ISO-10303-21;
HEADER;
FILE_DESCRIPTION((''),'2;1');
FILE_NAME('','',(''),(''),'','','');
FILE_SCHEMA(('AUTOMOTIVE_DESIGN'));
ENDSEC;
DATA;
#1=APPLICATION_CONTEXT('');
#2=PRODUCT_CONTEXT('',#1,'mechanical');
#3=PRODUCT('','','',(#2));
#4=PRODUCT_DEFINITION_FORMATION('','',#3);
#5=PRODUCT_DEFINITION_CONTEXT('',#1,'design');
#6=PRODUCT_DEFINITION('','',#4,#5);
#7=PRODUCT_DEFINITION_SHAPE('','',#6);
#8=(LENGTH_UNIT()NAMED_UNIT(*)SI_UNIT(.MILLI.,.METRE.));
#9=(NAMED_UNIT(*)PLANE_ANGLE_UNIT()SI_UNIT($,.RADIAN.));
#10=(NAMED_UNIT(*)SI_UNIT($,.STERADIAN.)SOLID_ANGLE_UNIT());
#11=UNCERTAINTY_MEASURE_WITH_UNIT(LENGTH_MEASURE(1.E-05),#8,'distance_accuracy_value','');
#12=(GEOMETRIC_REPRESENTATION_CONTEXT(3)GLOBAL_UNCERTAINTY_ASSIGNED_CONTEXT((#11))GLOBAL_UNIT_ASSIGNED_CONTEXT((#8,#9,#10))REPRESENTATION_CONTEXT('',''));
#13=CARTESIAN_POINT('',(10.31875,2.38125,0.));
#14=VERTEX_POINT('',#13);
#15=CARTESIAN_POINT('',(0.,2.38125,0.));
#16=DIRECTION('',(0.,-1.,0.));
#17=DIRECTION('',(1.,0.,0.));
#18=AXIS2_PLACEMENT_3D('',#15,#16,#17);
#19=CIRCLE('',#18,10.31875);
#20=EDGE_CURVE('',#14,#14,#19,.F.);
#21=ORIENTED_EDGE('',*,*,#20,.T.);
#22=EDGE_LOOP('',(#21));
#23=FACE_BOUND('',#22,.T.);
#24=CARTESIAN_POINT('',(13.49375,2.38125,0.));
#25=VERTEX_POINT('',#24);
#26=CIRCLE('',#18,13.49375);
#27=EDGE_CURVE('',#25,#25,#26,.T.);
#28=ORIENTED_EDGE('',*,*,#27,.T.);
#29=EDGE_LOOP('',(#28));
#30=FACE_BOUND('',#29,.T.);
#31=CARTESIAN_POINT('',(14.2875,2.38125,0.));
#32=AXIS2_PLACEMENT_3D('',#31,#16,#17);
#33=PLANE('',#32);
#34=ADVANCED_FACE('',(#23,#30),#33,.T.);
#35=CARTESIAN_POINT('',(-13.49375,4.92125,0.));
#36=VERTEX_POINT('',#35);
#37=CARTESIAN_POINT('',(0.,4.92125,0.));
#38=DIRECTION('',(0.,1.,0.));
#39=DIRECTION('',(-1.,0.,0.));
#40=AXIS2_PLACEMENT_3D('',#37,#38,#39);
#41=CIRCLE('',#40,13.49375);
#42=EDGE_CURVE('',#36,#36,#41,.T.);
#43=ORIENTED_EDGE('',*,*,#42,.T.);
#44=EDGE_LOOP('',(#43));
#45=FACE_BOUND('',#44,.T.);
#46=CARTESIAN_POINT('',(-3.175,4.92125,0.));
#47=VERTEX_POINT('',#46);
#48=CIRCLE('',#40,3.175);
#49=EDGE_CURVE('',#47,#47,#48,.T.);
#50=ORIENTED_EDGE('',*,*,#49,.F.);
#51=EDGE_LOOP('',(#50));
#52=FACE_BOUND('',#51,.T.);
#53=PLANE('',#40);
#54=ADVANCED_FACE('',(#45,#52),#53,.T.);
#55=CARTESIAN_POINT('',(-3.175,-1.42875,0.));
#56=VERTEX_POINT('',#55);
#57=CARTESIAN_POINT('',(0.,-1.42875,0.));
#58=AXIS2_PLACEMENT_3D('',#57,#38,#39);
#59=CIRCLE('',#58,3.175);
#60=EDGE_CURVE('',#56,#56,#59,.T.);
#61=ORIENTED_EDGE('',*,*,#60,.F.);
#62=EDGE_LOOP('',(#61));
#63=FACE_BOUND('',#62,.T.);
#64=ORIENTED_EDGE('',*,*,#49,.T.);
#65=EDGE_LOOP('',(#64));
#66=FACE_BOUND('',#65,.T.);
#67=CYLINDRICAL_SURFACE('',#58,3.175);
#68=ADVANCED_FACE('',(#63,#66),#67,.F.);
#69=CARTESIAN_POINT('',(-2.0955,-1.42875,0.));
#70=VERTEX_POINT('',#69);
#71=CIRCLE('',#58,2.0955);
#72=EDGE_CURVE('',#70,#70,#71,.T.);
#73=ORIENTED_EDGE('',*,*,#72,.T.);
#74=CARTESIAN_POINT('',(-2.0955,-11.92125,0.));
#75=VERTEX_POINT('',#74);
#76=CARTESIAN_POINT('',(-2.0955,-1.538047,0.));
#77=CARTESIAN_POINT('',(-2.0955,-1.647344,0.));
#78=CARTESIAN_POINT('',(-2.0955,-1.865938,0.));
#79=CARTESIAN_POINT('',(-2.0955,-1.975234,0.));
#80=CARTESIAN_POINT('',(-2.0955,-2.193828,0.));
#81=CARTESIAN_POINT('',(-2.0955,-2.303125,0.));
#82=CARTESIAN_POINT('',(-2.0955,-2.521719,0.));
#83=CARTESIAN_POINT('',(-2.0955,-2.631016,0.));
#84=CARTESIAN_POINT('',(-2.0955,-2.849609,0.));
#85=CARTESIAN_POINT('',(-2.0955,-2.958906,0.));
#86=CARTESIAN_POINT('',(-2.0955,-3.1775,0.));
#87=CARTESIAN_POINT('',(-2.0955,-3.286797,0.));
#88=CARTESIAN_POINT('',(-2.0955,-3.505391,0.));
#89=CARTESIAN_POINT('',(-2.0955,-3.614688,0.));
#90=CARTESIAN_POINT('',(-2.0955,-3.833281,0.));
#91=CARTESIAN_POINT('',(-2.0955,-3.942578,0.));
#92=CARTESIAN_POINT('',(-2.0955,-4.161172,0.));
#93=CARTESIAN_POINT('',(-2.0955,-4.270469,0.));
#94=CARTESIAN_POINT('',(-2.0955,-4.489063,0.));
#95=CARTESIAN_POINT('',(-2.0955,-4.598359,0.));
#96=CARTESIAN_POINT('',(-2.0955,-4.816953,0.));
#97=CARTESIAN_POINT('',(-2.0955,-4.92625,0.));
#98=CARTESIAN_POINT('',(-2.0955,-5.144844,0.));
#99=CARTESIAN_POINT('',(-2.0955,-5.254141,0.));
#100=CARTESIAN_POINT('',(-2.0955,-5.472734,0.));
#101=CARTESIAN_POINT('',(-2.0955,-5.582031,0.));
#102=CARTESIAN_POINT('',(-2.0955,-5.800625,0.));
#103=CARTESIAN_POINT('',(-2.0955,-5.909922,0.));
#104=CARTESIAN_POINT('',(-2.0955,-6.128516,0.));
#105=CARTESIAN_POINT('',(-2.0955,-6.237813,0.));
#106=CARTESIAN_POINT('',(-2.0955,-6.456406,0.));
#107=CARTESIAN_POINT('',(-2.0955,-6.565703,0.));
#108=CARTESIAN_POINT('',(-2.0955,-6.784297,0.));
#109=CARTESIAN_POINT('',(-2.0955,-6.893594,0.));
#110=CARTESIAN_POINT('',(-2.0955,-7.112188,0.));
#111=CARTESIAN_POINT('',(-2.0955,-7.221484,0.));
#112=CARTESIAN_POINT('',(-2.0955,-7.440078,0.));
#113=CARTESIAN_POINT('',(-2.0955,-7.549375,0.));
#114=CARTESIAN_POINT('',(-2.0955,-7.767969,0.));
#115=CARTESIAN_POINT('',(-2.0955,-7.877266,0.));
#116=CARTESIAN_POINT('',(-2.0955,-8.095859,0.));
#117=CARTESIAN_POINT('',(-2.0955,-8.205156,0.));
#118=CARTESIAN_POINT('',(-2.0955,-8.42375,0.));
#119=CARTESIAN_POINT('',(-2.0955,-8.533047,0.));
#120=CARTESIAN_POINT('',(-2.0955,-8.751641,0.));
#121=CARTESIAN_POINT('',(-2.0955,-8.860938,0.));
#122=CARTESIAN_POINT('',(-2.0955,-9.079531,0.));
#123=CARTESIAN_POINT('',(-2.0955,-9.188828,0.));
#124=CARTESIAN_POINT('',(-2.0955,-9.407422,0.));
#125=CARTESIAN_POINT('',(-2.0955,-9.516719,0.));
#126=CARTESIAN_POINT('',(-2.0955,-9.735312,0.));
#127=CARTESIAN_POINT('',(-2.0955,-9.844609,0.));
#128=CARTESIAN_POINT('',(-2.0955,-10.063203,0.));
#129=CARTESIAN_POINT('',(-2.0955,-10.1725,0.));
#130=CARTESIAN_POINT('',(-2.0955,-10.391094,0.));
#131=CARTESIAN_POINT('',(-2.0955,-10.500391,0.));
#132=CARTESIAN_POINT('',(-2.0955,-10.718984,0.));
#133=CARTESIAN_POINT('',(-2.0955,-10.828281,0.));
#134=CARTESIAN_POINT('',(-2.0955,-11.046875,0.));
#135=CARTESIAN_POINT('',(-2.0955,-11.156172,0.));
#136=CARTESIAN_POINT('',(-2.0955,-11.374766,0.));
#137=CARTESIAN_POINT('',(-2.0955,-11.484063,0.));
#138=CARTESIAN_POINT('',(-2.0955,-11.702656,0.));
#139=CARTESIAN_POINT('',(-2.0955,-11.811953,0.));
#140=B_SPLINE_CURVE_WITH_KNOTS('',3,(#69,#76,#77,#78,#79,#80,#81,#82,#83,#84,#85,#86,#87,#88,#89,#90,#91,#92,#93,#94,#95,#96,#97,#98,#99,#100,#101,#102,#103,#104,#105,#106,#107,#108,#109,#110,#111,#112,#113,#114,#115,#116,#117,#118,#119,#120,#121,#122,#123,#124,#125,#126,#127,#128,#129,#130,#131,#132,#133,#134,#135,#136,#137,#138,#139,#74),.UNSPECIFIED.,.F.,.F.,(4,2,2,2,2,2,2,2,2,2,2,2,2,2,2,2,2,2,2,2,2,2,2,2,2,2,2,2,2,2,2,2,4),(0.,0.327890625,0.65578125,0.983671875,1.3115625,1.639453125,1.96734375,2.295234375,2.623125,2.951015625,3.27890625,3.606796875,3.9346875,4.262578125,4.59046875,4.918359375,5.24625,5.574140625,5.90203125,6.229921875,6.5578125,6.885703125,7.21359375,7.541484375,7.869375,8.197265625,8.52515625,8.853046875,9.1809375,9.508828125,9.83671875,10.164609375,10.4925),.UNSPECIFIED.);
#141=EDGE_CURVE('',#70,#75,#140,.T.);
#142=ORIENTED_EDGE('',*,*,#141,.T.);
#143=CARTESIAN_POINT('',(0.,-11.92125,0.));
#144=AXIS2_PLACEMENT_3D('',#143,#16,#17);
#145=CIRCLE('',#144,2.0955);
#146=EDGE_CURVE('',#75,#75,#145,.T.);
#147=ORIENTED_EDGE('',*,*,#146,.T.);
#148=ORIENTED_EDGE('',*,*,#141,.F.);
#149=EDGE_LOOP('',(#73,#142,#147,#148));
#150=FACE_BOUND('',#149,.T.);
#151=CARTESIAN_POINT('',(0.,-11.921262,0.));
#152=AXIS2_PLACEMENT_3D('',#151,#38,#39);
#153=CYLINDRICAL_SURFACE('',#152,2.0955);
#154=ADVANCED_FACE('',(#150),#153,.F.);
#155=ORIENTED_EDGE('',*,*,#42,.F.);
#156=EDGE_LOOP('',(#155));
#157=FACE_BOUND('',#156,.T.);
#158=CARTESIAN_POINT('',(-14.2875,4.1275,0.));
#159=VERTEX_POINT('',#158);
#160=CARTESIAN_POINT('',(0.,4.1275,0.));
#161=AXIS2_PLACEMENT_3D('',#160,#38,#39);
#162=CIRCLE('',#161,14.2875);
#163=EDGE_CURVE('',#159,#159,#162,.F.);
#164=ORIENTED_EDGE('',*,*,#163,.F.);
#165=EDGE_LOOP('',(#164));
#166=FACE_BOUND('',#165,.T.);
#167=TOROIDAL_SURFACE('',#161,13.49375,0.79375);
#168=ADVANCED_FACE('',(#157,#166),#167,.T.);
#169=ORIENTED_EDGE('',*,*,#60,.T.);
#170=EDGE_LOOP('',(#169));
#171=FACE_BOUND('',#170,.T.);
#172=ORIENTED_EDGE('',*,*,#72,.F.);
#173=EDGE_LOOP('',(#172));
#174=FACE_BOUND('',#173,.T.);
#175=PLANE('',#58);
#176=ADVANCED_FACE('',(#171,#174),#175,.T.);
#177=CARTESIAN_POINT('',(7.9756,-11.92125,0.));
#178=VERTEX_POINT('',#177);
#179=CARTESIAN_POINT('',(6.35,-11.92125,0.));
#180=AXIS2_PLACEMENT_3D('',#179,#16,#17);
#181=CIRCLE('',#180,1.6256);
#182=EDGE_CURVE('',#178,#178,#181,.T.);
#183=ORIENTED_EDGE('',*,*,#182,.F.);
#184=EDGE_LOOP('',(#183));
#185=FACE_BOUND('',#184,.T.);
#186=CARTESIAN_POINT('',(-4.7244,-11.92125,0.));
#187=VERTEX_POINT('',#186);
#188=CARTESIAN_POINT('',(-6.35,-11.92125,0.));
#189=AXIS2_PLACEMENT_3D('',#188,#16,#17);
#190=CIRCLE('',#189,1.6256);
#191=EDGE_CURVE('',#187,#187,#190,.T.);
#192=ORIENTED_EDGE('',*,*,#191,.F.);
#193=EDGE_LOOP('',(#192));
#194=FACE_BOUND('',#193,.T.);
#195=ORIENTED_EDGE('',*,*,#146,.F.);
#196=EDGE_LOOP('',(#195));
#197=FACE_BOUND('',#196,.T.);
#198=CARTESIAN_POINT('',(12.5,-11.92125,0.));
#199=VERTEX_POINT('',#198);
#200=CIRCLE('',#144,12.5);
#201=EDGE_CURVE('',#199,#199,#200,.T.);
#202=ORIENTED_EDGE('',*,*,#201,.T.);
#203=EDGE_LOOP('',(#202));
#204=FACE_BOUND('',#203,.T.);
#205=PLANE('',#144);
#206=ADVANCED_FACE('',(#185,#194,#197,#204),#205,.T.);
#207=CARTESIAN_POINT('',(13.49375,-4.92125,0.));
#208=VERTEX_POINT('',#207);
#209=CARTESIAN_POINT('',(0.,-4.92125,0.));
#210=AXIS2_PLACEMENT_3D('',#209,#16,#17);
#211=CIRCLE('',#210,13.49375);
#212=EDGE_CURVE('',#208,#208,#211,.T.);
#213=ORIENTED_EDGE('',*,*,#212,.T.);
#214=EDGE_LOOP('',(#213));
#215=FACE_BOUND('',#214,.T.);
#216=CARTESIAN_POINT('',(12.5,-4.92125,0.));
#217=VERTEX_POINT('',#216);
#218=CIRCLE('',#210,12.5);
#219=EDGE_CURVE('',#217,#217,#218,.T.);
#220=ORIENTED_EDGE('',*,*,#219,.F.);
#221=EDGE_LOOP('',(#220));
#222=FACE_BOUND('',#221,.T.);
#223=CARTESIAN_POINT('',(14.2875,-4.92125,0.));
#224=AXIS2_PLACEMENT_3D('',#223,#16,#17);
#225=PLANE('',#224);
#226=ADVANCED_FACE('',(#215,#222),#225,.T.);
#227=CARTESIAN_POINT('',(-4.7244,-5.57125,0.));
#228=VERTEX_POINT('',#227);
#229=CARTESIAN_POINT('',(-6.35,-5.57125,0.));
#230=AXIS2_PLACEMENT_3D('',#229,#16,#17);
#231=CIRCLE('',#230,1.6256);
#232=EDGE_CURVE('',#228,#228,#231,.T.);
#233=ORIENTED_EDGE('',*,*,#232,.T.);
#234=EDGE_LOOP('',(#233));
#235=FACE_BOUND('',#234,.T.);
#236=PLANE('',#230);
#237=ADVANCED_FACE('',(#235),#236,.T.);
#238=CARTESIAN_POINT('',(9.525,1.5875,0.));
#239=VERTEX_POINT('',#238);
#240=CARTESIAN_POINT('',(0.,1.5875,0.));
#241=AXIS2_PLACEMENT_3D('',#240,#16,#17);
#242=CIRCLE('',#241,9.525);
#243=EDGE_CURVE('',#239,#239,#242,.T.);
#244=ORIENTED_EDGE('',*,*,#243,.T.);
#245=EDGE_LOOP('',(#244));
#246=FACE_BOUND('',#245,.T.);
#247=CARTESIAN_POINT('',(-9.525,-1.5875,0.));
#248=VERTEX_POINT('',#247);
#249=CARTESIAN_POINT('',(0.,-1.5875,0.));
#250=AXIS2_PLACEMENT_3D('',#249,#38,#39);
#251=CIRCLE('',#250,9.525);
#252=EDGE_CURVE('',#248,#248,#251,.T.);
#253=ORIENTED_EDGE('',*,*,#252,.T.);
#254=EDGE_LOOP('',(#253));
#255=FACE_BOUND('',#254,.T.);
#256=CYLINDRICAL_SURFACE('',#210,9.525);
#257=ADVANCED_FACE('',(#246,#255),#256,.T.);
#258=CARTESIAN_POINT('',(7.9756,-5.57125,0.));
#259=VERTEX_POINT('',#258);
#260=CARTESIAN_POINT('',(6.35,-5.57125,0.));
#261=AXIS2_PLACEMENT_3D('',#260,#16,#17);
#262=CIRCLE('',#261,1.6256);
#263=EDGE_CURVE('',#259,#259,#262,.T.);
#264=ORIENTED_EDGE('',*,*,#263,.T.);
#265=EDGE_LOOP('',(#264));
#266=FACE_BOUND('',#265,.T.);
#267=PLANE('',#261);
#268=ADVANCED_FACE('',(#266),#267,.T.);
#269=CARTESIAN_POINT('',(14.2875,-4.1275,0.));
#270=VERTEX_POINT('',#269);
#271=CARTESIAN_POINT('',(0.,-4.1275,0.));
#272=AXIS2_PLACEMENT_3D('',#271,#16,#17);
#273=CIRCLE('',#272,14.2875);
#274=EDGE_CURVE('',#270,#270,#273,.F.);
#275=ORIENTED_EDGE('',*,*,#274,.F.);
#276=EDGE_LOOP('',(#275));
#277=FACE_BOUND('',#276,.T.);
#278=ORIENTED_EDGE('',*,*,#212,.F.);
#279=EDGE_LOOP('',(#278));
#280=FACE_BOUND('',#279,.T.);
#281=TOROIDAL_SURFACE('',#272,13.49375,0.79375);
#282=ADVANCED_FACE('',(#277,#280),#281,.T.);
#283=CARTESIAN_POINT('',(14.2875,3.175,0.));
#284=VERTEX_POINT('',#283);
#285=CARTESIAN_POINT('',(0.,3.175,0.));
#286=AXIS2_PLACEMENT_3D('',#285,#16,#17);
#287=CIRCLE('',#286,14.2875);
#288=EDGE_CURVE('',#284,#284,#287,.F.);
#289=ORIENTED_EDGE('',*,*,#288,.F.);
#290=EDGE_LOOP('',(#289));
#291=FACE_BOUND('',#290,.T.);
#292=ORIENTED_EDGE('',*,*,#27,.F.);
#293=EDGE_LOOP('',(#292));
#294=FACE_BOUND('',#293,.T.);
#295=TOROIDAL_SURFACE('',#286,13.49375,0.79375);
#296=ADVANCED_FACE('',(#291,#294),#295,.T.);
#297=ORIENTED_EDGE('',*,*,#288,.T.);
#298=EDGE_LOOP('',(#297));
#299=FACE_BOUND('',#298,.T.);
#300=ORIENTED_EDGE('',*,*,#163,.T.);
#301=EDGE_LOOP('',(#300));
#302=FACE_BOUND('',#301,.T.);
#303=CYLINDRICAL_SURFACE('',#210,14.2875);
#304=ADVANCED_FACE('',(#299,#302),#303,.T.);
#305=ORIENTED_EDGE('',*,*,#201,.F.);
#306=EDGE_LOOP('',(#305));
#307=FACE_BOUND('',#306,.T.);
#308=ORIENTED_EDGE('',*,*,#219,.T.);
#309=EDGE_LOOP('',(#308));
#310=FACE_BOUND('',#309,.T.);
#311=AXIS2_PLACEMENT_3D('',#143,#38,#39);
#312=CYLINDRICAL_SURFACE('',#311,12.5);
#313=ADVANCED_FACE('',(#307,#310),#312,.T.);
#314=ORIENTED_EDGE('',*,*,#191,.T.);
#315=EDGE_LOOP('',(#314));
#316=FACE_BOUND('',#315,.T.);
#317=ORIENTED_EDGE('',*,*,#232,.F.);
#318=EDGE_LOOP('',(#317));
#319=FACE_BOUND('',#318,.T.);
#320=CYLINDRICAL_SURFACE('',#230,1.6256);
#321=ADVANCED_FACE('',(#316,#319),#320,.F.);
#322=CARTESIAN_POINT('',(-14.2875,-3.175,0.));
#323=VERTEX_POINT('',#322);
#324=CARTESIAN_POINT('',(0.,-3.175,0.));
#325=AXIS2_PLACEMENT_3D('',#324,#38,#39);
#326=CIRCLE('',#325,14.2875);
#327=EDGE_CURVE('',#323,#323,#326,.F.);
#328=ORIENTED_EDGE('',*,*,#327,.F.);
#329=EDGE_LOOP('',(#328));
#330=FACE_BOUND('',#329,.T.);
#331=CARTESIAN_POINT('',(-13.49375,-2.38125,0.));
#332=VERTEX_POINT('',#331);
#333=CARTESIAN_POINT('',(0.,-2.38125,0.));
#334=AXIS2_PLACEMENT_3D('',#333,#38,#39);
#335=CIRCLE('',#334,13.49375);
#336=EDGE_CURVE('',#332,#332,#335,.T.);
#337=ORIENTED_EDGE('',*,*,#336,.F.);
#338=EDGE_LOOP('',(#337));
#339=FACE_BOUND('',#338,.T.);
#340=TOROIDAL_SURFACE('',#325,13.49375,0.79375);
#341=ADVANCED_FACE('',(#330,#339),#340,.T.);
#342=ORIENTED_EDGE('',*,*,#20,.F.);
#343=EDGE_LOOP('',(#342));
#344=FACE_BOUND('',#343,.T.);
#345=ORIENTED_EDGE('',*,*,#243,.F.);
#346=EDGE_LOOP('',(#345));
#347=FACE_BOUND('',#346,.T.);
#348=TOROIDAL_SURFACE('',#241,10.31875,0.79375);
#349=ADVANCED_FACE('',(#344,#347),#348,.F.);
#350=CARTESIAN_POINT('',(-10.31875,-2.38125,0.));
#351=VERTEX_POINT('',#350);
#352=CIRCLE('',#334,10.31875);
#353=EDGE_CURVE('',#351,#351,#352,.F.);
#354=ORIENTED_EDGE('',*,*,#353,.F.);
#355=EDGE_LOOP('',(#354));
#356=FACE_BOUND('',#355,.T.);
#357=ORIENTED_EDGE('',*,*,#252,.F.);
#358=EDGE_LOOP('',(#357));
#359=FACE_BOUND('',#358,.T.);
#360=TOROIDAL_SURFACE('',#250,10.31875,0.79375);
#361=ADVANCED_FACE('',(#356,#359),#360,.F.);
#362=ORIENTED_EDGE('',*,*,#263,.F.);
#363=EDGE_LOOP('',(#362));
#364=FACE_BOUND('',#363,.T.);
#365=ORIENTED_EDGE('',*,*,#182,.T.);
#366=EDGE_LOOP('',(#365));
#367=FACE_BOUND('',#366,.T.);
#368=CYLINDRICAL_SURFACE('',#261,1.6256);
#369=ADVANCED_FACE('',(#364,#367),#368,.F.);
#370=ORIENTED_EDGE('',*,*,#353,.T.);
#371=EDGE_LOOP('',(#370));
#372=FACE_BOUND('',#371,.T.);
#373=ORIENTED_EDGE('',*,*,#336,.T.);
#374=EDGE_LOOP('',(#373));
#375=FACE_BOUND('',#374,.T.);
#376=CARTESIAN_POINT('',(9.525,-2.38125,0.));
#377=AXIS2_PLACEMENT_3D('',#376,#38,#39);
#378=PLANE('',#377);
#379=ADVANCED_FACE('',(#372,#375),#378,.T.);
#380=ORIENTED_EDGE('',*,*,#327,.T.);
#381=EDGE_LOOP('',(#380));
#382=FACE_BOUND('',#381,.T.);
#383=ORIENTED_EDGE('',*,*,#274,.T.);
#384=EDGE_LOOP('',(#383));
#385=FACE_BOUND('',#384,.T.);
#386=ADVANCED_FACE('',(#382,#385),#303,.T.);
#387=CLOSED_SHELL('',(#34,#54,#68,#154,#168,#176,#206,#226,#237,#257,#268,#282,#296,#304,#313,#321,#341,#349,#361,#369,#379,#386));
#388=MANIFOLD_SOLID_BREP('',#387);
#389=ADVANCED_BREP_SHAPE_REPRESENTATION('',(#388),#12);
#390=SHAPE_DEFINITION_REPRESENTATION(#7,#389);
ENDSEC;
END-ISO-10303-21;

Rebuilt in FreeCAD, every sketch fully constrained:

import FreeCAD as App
import Part
import Sketcher

V = App.Vector
Q = App.Units.Quantity


def edges_at(feature, points):
    """Names of the edges that pass closest to the given points."""
    edges = feature.Shape.Edges
    near = lambda p: min(range(len(edges)), key=lambda i: edges[i].distToShape(Part.Vertex(*p))[0])
    return sorted({f"Edge{near(p) + 1}" for p in points})


def add_polygon(sketch, points):
    """Adds a closed chain of lines whose ends are joined by coincident constraints."""
    first, n = sketch.GeometryCount, len(points)
    for a, b in zip(points, points[1:] + points[:1]):
        sketch.addGeometry(Part.LineSegment(App.Vector(*a, 0), App.Vector(*b, 0)), False)
    for i in range(n):
        sketch.addConstraint(Sketcher.Constraint("Coincident", first + i, 2, first + (i + 1) % n, 1))

doc = App.newDocument("Part")
params = doc.addObject("Spreadsheet::Sheet", "Params")
for row, (alias, value) in enumerate([
    ("sketch1_height", "0.1 in"),
    ("sketch1_width", "0.5625 in"),
    ("sketch1_width2", "0.1875 in"),
    ("revolution_angle", "360 deg"),
    ("fillet_radius", "0.03125 in"),
    ("sketch2_diameter", "0.25 in"),
    ("pocket1_length", "0.25 in"),
    ("pad1_length", "7 mm"),
    ("sketch4_diameter", "0.165 in"),
    ("sketch5_diameter", "0.128 in"),
    ("pocket3_length", "0.25 in"),
], start=1):
    params.set(f"A{row}", alias)
    params.set(f"B{row}", "=" + value)
    params.setAlias(f"B{row}", alias)

body = doc.addObject("PartDesign::Body", "Body")

# Sketch on XY plane
sketch1 = doc.addObject("Sketcher::SketchObject", "Sketch")
body.addObject(sketch1)
sketch1.AttachmentSupport = (doc.XY_Plane, [""])
sketch1.MapMode = "FlatFace"
add_polygon(sketch1, [(14.3, 4.9), (0, 4.9), (0, -4.9), (14.3, -4.9), (14.3, -2.4), (9.5, -2.4), (9.5, 2.4), (14.3, 2.4)])  # lines 0-7
sketch1.addConstraint(Sketcher.Constraint("Horizontal", 0))
sketch1.addConstraint(Sketcher.Constraint("Vertical", 1))
sketch1.addConstraint(Sketcher.Constraint("Horizontal", 2))
sketch1.addConstraint(Sketcher.Constraint("Vertical", 3))
sketch1.addConstraint(Sketcher.Constraint("Horizontal", 4))
sketch1.addConstraint(Sketcher.Constraint("Vertical", 5))
sketch1.addConstraint(Sketcher.Constraint("Horizontal", 6))
sketch1.addConstraint(Sketcher.Constraint("Vertical", 7))
sketch1.addConstraint(Sketcher.Constraint("Symmetric", 0, 2, 1, 2, -1, 1))
sketch1.addConstraint(Sketcher.Constraint("Symmetric", 3, 2, 6, 2, -1))
sketch1.addConstraint(Sketcher.Constraint("Equal", 6, 5))
sketch1.addConstraint(Sketcher.Constraint("DistanceY", 3, 1, 3, 2, Q("0.1 in")))
sketch1.addConstraint(Sketcher.Constraint("DistanceX", 0, 2, 0, 1, Q("0.5625 in")))
sketch1.addConstraint(Sketcher.Constraint("DistanceX", 4, 2, 4, 1, Q("0.1875 in")))
sketch1.setExpression("Constraints[19]", "Params.sketch1_height")
sketch1.setExpression("Constraints[20]", "Params.sketch1_width")
sketch1.setExpression("Constraints[21]", "Params.sketch1_width2")
revolution = doc.addObject("PartDesign::Revolution", "Revolution")
body.addObject(revolution)
revolution.Profile = sketch1
revolution.ReferenceAxis = (sketch1, ["V_Axis"])
revolution.setExpression("Angle", "Params.revolution_angle")
doc.recompute()

fillet = doc.addObject("PartDesign::Fillet", "Fillet")
body.addObject(fillet)
fillet.Base = (revolution, edges_at(revolution, [
    (-14.287, 2.381, 0),
    (-14.287, 4.921, 0),
    (-14.287, -4.921, 0),
    (-14.287, -2.381, 0),
    (-9.525, -2.381, 0),
    (-9.525, 2.381, 0),
]))
fillet.setExpression("Radius", "Params.fillet_radius")

# Sketch on XZ plane
sketch2 = doc.addObject("Sketcher::SketchObject", "Sketch001")
body.addObject(sketch2)
sketch2.AttachmentSupport = (doc.XZ_Plane, [""])
sketch2.MapMode = "FlatFace"
sketch2.AttachmentOffset = App.Placement(V(0, 0, -4.92125), App.Rotation())
sketch2.addGeometry(Part.Circle(V(0, 0, 0), V(0, 0, 1), 3.2), False)
sketch2.addConstraint(Sketcher.Constraint("Coincident", 0, 3, -1, 1))
sketch2.addConstraint(Sketcher.Constraint("Diameter", 0, Q("0.25 in")))
sketch2.setExpression("Constraints[1]", "Params.sketch2_diameter")
pocket1 = doc.addObject("PartDesign::Pocket", "Pocket")
body.addObject(pocket1)
pocket1.Profile = sketch2
pocket1.setExpression("Length", "Params.pocket1_length")
pocket1.Reversed = True

# Sketch on XZ plane
sketch3 = doc.addObject("Sketcher::SketchObject", "Sketch002")
body.addObject(sketch3)
sketch3.AttachmentSupport = (doc.XZ_Plane, [""])
sketch3.MapMode = "FlatFace"
sketch3.AttachmentOffset = App.Placement(V(0, 0, 4.92125), App.Rotation())
sketch3.addGeometry(Part.Circle(V(0, 0, 0), V(0, 0, 1), 12), False)
sketch3.addConstraint(Sketcher.Constraint("Coincident", 0, 3, -1, 1))
sketch3.addConstraint(Sketcher.Constraint("Diameter", 0, 25.0))
pad1 = doc.addObject("PartDesign::Pad", "Pad")
body.addObject(pad1)
pad1.Profile = sketch3
pad1.setExpression("Length", "Params.pad1_length")

# Sketch on XZ plane
sketch4 = doc.addObject("Sketcher::SketchObject", "Sketch003")
body.addObject(sketch4)
sketch4.AttachmentSupport = (doc.XZ_Plane, [""])
sketch4.MapMode = "FlatFace"
sketch4.AttachmentOffset = App.Placement(V(0, 0, 11.92125), App.Rotation())
sketch4.addGeometry(Part.Circle(V(0, 0, 0), V(0, 0, 1), 2.1), False)
sketch4.addConstraint(Sketcher.Constraint("Coincident", 0, 3, -1, 1))
sketch4.addConstraint(Sketcher.Constraint("Diameter", 0, Q("0.165 in")))
sketch4.setExpression("Constraints[1]", "Params.sketch4_diameter")
pocket2 = doc.addObject("PartDesign::Pocket", "Pocket001")
body.addObject(pocket2)
pocket2.Profile = sketch4
pocket2.Type = "ThroughAll"
pocket2.Midplane = True

# Sketch on XZ plane
sketch5 = doc.addObject("Sketcher::SketchObject", "Sketch004")
body.addObject(sketch5)
sketch5.AttachmentSupport = (doc.XZ_Plane, [""])
sketch5.MapMode = "FlatFace"
sketch5.AttachmentOffset = App.Placement(V(0, 0, 11.92125), App.Rotation())
sketch5.addGeometry(Part.Circle(V(-6.3, 0, 0), V(0, 0, 1), 1.6), False)
sketch5.addGeometry(Part.Circle(V(6.3, 0, 0), V(0, 0, 1), 1.6), False)
sketch5.addConstraint(Sketcher.Constraint("Equal", 0, 1))
sketch5.addConstraint(Sketcher.Constraint("Symmetric", 0, 3, 1, 3, -1, 1))
sketch5.addConstraint(Sketcher.Constraint("PointOnObject", 0, 3, -1))
sketch5.addConstraint(Sketcher.Constraint("Diameter", 0, Q("0.128 in")))
sketch5.addConstraint(Sketcher.Constraint("DistanceX", 0, 3, 1, 3, Q("0.5 in")))
sketch5.setExpression("Constraints[3]", "Params.sketch5_diameter")
pocket3 = doc.addObject("PartDesign::Pocket", "Pocket002")
body.addObject(pocket3)
pocket3.Profile = sketch5
pocket3.setExpression("Length", "Params.pocket3_length")

doc.recompute()
